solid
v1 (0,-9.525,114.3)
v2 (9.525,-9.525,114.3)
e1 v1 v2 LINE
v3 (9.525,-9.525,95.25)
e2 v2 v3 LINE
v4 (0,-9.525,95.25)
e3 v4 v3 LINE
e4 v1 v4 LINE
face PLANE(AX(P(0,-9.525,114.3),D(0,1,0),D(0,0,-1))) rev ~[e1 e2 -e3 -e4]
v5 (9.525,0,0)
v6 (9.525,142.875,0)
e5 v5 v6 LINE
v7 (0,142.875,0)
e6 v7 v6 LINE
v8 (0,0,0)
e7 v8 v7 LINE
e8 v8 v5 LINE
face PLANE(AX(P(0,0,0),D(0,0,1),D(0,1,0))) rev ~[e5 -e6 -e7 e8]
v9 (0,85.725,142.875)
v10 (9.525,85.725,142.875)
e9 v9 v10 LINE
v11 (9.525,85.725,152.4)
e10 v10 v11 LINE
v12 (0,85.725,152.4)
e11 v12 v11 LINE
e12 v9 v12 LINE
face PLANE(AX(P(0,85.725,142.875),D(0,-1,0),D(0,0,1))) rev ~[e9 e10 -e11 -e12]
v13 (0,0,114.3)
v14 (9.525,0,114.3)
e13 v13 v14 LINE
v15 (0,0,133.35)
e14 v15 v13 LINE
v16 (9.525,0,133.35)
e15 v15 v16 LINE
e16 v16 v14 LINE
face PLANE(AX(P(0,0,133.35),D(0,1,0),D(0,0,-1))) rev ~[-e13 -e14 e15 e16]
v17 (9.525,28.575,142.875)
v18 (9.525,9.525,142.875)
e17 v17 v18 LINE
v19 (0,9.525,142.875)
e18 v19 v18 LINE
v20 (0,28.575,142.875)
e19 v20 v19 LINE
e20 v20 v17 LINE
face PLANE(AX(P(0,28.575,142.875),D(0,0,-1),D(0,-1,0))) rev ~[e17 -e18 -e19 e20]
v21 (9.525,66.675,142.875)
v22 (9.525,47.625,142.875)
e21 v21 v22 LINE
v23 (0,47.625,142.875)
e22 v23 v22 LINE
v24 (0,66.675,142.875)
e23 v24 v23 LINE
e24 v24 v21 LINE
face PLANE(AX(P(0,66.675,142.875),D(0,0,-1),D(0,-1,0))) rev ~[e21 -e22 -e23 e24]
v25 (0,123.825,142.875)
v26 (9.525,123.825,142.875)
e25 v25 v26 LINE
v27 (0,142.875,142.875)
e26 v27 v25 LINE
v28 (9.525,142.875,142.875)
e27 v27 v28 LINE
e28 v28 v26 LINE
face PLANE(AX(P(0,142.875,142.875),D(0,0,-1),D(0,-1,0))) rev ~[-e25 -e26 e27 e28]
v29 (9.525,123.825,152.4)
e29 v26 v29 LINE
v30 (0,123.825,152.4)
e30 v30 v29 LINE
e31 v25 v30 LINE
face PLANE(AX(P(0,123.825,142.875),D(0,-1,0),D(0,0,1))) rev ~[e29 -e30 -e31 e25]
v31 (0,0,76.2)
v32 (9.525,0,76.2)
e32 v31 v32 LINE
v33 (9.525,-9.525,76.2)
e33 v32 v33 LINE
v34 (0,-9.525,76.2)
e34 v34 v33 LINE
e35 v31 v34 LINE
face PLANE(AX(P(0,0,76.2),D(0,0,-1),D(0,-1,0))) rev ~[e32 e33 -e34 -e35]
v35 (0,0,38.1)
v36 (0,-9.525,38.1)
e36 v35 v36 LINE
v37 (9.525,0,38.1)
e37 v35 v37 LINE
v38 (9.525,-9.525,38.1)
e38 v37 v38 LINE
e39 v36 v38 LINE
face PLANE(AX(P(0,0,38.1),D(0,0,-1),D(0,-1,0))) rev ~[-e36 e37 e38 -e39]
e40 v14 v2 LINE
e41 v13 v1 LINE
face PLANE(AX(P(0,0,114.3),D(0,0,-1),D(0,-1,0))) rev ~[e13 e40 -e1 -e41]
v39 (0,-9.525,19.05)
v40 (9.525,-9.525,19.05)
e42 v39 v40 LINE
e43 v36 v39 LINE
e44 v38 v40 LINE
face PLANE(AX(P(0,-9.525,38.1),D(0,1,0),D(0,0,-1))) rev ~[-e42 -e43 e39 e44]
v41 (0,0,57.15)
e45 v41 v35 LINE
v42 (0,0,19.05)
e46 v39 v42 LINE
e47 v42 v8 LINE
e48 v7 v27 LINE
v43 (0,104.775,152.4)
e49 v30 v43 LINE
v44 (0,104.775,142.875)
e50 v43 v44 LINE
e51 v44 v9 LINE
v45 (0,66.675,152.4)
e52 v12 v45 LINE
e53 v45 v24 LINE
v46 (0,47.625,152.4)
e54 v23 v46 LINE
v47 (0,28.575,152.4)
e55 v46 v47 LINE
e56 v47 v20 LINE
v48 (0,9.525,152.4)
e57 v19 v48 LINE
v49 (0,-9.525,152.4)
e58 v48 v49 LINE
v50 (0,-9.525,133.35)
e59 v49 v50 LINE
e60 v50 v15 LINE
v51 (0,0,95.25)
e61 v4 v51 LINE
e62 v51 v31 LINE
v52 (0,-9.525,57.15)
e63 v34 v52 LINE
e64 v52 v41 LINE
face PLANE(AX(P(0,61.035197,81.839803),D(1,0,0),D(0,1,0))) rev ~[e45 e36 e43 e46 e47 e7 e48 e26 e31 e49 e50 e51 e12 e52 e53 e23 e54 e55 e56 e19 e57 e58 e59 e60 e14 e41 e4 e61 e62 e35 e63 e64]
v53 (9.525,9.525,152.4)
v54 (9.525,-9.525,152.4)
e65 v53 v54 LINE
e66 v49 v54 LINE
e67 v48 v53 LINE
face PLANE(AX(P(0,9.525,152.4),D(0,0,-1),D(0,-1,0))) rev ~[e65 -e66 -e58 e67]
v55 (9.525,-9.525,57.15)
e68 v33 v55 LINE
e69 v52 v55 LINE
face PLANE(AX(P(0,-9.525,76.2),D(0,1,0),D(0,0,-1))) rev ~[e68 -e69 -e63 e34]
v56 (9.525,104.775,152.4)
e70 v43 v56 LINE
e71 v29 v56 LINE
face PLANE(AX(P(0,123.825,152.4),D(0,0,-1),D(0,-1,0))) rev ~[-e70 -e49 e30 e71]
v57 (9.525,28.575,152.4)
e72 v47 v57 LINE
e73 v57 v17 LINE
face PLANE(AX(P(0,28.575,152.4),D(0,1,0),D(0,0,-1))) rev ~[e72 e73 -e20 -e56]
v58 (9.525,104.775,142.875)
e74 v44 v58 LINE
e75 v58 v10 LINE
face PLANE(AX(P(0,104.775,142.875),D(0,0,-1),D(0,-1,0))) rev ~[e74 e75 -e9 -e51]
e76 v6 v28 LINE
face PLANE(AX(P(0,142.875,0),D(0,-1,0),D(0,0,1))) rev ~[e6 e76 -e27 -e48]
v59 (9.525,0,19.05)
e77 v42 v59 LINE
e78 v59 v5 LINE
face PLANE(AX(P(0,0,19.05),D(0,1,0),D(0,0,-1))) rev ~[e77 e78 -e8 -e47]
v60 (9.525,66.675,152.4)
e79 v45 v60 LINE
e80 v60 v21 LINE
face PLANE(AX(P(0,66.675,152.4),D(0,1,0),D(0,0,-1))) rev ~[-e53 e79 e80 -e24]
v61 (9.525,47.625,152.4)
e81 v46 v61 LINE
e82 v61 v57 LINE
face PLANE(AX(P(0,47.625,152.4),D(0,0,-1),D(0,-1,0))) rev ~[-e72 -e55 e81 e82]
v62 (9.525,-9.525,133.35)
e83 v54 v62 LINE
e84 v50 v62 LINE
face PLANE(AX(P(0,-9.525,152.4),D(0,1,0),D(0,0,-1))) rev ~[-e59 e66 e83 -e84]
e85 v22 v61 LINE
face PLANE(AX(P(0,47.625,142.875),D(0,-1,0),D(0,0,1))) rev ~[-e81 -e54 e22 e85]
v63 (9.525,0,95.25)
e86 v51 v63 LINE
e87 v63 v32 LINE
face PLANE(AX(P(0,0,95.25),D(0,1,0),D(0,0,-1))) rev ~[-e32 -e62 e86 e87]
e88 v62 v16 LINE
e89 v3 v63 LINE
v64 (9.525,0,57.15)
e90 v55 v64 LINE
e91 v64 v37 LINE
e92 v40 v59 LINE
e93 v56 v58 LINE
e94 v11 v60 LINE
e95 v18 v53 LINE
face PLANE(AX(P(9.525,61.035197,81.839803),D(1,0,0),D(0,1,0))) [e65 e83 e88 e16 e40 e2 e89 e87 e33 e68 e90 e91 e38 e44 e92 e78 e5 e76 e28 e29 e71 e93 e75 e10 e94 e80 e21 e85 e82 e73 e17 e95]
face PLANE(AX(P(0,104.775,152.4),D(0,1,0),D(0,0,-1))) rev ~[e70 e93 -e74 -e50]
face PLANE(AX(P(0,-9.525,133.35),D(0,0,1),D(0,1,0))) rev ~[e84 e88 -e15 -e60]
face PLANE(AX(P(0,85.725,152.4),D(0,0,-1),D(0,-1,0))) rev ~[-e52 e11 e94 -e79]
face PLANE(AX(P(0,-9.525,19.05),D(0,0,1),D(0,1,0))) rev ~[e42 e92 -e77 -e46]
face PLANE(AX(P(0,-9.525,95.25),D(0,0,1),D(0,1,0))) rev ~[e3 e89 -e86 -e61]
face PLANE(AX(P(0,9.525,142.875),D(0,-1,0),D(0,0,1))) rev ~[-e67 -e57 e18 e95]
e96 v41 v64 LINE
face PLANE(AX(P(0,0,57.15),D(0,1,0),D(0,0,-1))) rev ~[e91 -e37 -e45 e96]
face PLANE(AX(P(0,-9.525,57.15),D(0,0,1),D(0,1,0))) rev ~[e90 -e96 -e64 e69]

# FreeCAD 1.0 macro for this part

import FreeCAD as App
import Part
import Sketcher
from FreeCAD import Vector
Q = App.Units.Quantity


def add_polygon(sketch, points):
    """Adds a closed chain of lines whose ends are joined by coincident constraints."""
    first, n = sketch.GeometryCount, len(points)
    for a, b in zip(points, points[1:] + points[:1]):
        sketch.addGeometry(Part.LineSegment(App.Vector(*a, 0), App.Vector(*b, 0)), False)
    for i in range(n):
        sketch.addConstraint(Sketcher.Constraint("Coincident", first + i, 2, first + (i + 1) % n, 1))

doc = App.newDocument("Part")
params = doc.addObject("Spreadsheet::Sheet", "Params")
for row, (alias, value) in enumerate([
    ("sketch1_width", "5.625 in"),
    ("pad1_length", "0.375 in"),
], start=1):
    params.set(f"A{row}", alias)
    params.set(f"B{row}", "=" + value)
    params.setAlias(f"B{row}", alias)

body = doc.addObject("PartDesign::Body", "Body")

sketch1 = body.newObject("Sketcher::SketchObject", "Sketch")
sketch1.AttachmentSupport = (doc.getObject("YZ_Plane"), [""])
sketch1.MapMode = "FlatFace"
add_polygon(sketch1, [(0, 19), (0, 0), (143, 0), (143, 143), (124, 143), (124, 152), (105, 152), (105, 143), (86, 143), (86, 152), (67, 152), (67, 143), (48, 143), (48, 152), (29, 152), (29, 143), (10, 143), (10, 152), (-10, 152), (-10, 133), (0, 133), (0, 114), (-10, 114), (-10, 95), (0, 95), (0, 76), (-10, 76), (-10, 57), (0, 57), (0, 38), (-10, 38), (-10, 19)])
sketch1.addConstraint([
    Sketcher.Constraint("Vertical", 0),
    Sketcher.Constraint("Horizontal", 1),
    Sketcher.Constraint("Vertical", 2),
    Sketcher.Constraint("Horizontal", 3),
    Sketcher.Constraint("Vertical", 4),
    Sketcher.Constraint("Horizontal", 5),
    Sketcher.Constraint("Vertical", 6),
    Sketcher.Constraint("Horizontal", 7),
    Sketcher.Constraint("Vertical", 8),
    Sketcher.Constraint("Horizontal", 9),
    Sketcher.Constraint("Vertical", 10),
    Sketcher.Constraint("Horizontal", 11),
    Sketcher.Constraint("Vertical", 12),
    Sketcher.Constraint("Horizontal", 13),
    Sketcher.Constraint("Vertical", 14),
    Sketcher.Constraint("Horizontal", 15),
    Sketcher.Constraint("Vertical", 16),
    Sketcher.Constraint("Horizontal", 17),
    Sketcher.Constraint("Vertical", 18),
    Sketcher.Constraint("Horizontal", 19),
    Sketcher.Constraint("Vertical", 20),
    Sketcher.Constraint("Horizontal", 21),
    Sketcher.Constraint("Vertical", 22),
    Sketcher.Constraint("Horizontal", 23),
    Sketcher.Constraint("Vertical", 24),
    Sketcher.Constraint("Horizontal", 25),
    Sketcher.Constraint("Vertical", 26),
    Sketcher.Constraint("Horizontal", 27),
    Sketcher.Constraint("Vertical", 28),
    Sketcher.Constraint("Horizontal", 29),
    Sketcher.Constraint("Vertical", 30),
    Sketcher.Constraint("Horizontal", 31),
    Sketcher.Constraint("Coincident", 0, 2, -1, 1),
    Sketcher.Constraint("PointOnObject", 19, 2, -2),
    Sketcher.Constraint("PointOnObject", 23, 2, -2),
    Sketcher.Constraint("PointOnObject", 27, 2, -2),
    Sketcher.Constraint("Horizontal", 3, 2, 6, 2),
    Sketcher.Constraint("Horizontal", 5, 2, 8, 2),
    Sketcher.Constraint("Horizontal", 7, 2, 10, 2),
    Sketcher.Constraint("Horizontal", 9, 2, 12, 2),
    Sketcher.Constraint("Horizontal", 11, 2, 14, 2),
    Sketcher.Constraint("Horizontal", 13, 2, 16, 2),
    Sketcher.Constraint("Vertical", 18, 2, 21, 2),
    Sketcher.Constraint("Vertical", 22, 2, 25, 2),
    Sketcher.Constraint("Vertical", 26, 2, 29, 2),
    Sketcher.Constraint("Equal", 3, 5),
    Sketcher.Constraint("Equal", 5, 7),
    Sketcher.Constraint("Equal", 7, 9),
    Sketcher.Constraint("Equal", 9, 11),
    Sketcher.Constraint("Equal", 11, 13),
    Sketcher.Constraint("Equal", 13, 15),
    Sketcher.Constraint("Equal", 15, 17),
    Sketcher.Constraint("Equal", 17, 0),
    Sketcher.Constraint("Equal", 1, 2),
    Sketcher.Constraint("Equal", 31, 4),
    Sketcher.Constraint("Equal", 0, 18),
    Sketcher.Constraint("Equal", 18, 20),
    Sketcher.Constraint("Equal", 20, 22),
    Sketcher.Constraint("Equal", 22, 24),
    Sketcher.Constraint("Equal", 24, 26),
    Sketcher.Constraint("Equal", 26, 28),
    Sketcher.Constraint("DistanceY", -1, 1, 4, 2, Q("6 in")),
    Sketcher.Constraint("DistanceX", 1, 1, 1, 2, Q("5.625 in")),
])
sketch1.setExpression("Constraints[94]", "Params.sketch1_width")
pad1 = body.newObject("PartDesign::Pad", "Pad")
pad1.Profile = sketch1
pad1.setExpression("Length", "Params.pad1_length")

doc.recompute()
